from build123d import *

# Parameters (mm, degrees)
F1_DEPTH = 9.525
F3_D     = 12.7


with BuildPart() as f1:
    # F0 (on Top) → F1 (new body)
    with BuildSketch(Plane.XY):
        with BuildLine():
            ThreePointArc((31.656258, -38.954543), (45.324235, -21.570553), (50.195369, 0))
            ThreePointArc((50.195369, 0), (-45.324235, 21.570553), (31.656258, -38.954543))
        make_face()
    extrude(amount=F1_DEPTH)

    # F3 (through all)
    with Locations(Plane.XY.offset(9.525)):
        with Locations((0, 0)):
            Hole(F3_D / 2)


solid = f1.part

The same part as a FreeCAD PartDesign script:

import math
import FreeCAD as App
import Part
import Sketcher
Q = App.Units.Quantity

doc = App.newDocument("Part")
params = doc.addObject("Spreadsheet::Sheet", "Params")
for row, (alias, value) in enumerate([
    ("pad1_length", "0.375 in"),
    ("sketch2_diameter", "0.5 in"),
    ("hole_diameter", "0.5 in"),
], start=1):
    params.set(f"A{row}", alias)
    params.set(f"B{row}", "=" + value)
    params.setAlias(f"B{row}", alias)

body = doc.addObject("PartDesign::Body", "Body")

# Sketch on XY plane
sketch1 = doc.addObject("Sketcher::SketchObject", "Sketch")
body.addObject(sketch1)
sketch1.AttachmentSupport = (doc.XY_Plane, [""])
sketch1.MapMode = "FlatFace"
sketch1.addGeometry(Part.ArcOfCircle(Part.Circle(App.Vector(-0.000004, 0.000002, 0), App.Vector(0, 0, 1), 50.195373), math.radians(-50.901096), math.radians(-0.000002)), False)
sketch1.addGeometry(Part.ArcOfCircle(Part.Circle(App.Vector(0, 0, 0), App.Vector(0, 0, 1), 50.195369), math.radians(0), math.radians(309.098901)), False)
sketch1.addConstraint(Sketcher.Constraint("Tangent", 0, 1, 1, 2))
sketch1.addConstraint(Sketcher.Constraint("Coincident", 1, 1, 0, 2))
sketch1.addConstraint(Sketcher.Constraint("Coincident", 0, 3, -1, 1))
sketch1.addConstraint(Sketcher.Constraint("PointOnObject", 1, 1, -1))
sketch1.addConstraint(Sketcher.Constraint("Radius", 1, Q("50.195369 mm")))
sketch1.addConstraint(Sketcher.Constraint("DistanceX", -1, 1, 0, 1, Q("31.656258 mm")))
pad1 = doc.addObject("PartDesign::Pad", "Pad")
body.addObject(pad1)
pad1.Profile = sketch1
pad1.setExpression("Length", "Params.pad1_length")

# Sketch on XY plane
sketch2 = doc.addObject("Sketcher::SketchObject", "Sketch001")
body.addObject(sketch2)
sketch2.AttachmentSupport = (doc.XY_Plane, [""])
sketch2.MapMode = "FlatFace"
sketch2.AttachmentOffset = App.Placement(App.Vector(0, 0, 0.375 * 25.4), App.Rotation())
sketch2.addGeometry(Part.Circle(App.Vector(0, 0, 0), App.Vector(0, 0, 1), 6.35), False)
sketch2.addConstraint(Sketcher.Constraint("Coincident", 0, 3, -1, 1))
sketch2.addConstraint(Sketcher.Constraint("Diameter", 0, Q("0.5 in")))
sketch2.setExpression("Constraints[1]", "Params.sketch2_diameter")
doc.recompute()
hole = doc.addObject("PartDesign::Hole", "Hole")
body.addObject(hole)
hole.Profile = sketch2
hole.ThreadType = "None"
hole.setExpression("Diameter", "Params.hole_diameter")
hole.DepthType = "ThroughAll"

doc.recompute()
